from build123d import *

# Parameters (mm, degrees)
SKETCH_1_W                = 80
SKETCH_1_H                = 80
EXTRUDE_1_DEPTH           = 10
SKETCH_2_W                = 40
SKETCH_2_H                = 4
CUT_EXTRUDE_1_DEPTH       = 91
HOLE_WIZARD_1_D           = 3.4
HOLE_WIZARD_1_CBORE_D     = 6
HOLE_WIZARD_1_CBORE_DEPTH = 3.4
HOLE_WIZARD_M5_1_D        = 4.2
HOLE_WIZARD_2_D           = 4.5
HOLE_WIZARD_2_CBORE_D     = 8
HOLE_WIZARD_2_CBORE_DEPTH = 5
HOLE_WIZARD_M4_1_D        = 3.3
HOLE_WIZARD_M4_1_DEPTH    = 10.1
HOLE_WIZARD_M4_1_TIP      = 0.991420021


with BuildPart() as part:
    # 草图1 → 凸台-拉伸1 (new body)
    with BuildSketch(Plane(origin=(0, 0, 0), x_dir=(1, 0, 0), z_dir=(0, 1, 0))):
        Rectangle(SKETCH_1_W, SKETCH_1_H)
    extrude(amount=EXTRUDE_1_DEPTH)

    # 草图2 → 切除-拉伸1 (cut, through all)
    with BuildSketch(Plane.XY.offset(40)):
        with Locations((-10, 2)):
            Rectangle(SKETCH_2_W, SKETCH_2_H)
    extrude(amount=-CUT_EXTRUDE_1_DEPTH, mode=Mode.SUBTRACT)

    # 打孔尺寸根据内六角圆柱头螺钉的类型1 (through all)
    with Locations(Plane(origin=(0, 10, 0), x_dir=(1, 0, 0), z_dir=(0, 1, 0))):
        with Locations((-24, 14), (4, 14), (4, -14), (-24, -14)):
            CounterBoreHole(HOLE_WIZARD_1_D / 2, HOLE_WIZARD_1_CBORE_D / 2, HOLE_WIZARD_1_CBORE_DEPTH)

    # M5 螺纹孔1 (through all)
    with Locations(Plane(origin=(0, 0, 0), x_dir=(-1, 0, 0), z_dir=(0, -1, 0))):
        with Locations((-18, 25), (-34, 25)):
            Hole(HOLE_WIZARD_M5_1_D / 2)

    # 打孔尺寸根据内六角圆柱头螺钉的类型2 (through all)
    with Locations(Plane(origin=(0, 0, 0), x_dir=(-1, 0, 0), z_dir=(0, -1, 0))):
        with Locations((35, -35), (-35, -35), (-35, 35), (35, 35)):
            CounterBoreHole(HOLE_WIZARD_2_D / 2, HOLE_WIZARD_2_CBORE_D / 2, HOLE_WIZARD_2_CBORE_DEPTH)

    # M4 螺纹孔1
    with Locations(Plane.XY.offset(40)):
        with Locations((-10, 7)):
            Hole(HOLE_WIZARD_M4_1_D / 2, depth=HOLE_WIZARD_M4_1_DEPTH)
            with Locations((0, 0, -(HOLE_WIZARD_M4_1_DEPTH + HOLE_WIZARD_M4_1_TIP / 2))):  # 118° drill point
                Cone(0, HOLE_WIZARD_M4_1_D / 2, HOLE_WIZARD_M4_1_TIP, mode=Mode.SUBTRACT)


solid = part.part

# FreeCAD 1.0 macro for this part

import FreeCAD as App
import Part
import Sketcher
from FreeCAD import Vector
Q = App.Units.Quantity

doc = App.newDocument("Part")
body = doc.addObject("PartDesign::Body", "Body")

# Sketch on XZ plane
sketch1 = doc.addObject("Sketcher::SketchObject", "Sketch")
body.addObject(sketch1)
sketch1.AttachmentSupport = (doc.XZ_Plane, [""])
sketch1.MapMode = "FlatFace"
sketch1.addGeometry([
    Part.LineSegment(Vector(-40, -40, 0), Vector(-40, 40, 0)),
    Part.LineSegment(Vector(-40, 40, 0), Vector(40, 40, 0)),
    Part.LineSegment(Vector(40, 40, 0), Vector(40, -40, 0)),
    Part.LineSegment(Vector(40, -40, 0), Vector(-40, -40, 0)),
], False)
sketch1.addConstraint([
    Sketcher.Constraint("Coincident", 0, 2, 1, 1),
    Sketcher.Constraint("Coincident", 1, 2, 2, 1),
    Sketcher.Constraint("Coincident", 2, 2, 3, 1),
    Sketcher.Constraint("Coincident", 3, 2, 0, 1),
    Sketcher.Constraint("Vertical", 0),
    Sketcher.Constraint("Horizontal", 1),
    Sketcher.Constraint("Vertical", 2),
    Sketcher.Constraint("Horizontal", 3),
    Sketcher.Constraint("Symmetric", 0, 2, 2, 2, -1, 1),
    Sketcher.Constraint("Equal", 3, 0),
    Sketcher.Constraint("DistanceX", 1, 1, 1, 2, Q("80 mm")),
])
pad1 = doc.addObject("PartDesign::Pad", "Pad")
body.addObject(pad1)
pad1.Profile = sketch1
pad1.Length = 10
pad1.Reversed = True

# Sketch on XY plane
sketch2 = doc.addObject("Sketcher::SketchObject", "Sketch001")
body.addObject(sketch2)
sketch2.AttachmentSupport = (doc.XY_Plane, [""])
sketch2.MapMode = "FlatFace"
sketch2.AttachmentOffset = App.Placement(Vector(0, 0, 40), App.Rotation())
sketch2.addGeometry([
    Part.LineSegment(Vector(-30, 4, 0), Vector(-30, 0, 0)),
    Part.LineSegment(Vector(-30, 0, 0), Vector(10, 0, 0)),
    Part.LineSegment(Vector(10, 0, 0), Vector(10, 4, 0)),
    Part.LineSegment(Vector(10, 4, 0), Vector(-30, 4, 0)),
], False)
sketch2.addConstraint([
    Sketcher.Constraint("Coincident", 0, 2, 1, 1),
    Sketcher.Constraint("Coincident", 1, 2, 2, 1),
    Sketcher.Constraint("Coincident", 2, 2, 3, 1),
    Sketcher.Constraint("Coincident", 3, 2, 0, 1),
    Sketcher.Constraint("Vertical", 0),
    Sketcher.Constraint("Horizontal", 1),
    Sketcher.Constraint("Vertical", 2),
    Sketcher.Constraint("Horizontal", 3),
    Sketcher.Constraint("PointOnObject", 0, 2, -1),
    Sketcher.Constraint("DistanceX", 1, 1, 1, 2, Q("40 mm")),
    Sketcher.Constraint("DistanceY", 0, 2, 0, 1, Q("4 mm")),
    Sketcher.Constraint("DistanceX", 0, 2, -1, 1, Q("30 mm")),
])
pocket1 = doc.addObject("PartDesign::Pocket", "Pocket")
body.addObject(pocket1)
pocket1.Profile = sketch2
pocket1.Type = "ThroughAll"

# Sketch on XZ plane
sketch3 = doc.addObject("Sketcher::SketchObject", "Sketch002")
body.addObject(sketch3)
sketch3.AttachmentSupport = (doc.XZ_Plane, [""])
sketch3.MapMode = "FlatFace"
sketch3.AttachmentOffset = App.Placement(Vector(0, 0, -10), App.Rotation())
sketch3.addGeometry([
    Part.Circle(Vector(-24, -14, 0), Vector(0, 0, 1), 1.7),
    Part.Circle(Vector(4, -14, 0), Vector(0, 0, 1), 1.7),
    Part.Circle(Vector(4, 14, 0), Vector(0, 0, 1), 1.7),
    Part.Circle(Vector(-24, 14, 0), Vector(0, 0, 1), 1.7),
], False)
sketch3.addConstraint([
    Sketcher.Constraint("Equal", 0, 1),
    Sketcher.Constraint("Equal", 1, 2),
    Sketcher.Constraint("Equal", 2, 3),
    Sketcher.Constraint("Symmetric", 1, 3, 2, 3, -1),
    Sketcher.Constraint("Symmetric", 0, 3, 3, 3, -1),
    Sketcher.Constraint("Horizontal", 0, 3, 1, 3),
    Sketcher.Constraint("Diameter", 0, Q("3.4 mm")),
    Sketcher.Constraint("DistanceX", 0, 3, -1, 1, Q("24 mm")),
    Sketcher.Constraint("DistanceY", 0, 3, -1, 1, Q("14 mm")),
    Sketcher.Constraint("DistanceX", -1, 1, 1, 3, Q("4 mm")),
])
doc.recompute()
hole = doc.addObject("PartDesign::Hole", "Hole")
body.addObject(hole)
hole.Profile = sketch3
hole.ThreadType = "None"
hole.Diameter = 3.4
hole.DepthType = "ThroughAll"
hole.HoleCutType = "Counterbore"
hole.HoleCutDiameter = 6
hole.HoleCutDepth = 3.4
hole.Reversed = True

# Sketch on XZ plane
sketch4 = doc.addObject("Sketcher::SketchObject", "Sketch003")
body.addObject(sketch4)
sketch4.AttachmentSupport = (doc.XZ_Plane, [""])
sketch4.MapMode = "FlatFace"
sketch4.addGeometry([
    Part.Circle(Vector(18, -25, 0), Vector(0, 0, 1), 2.1),
    Part.Circle(Vector(34, -25, 0), Vector(0, 0, 1), 2.1),
], False)
sketch4.addConstraint([
    Sketcher.Constraint("Equal", 0, 1),
    Sketcher.Constraint("Horizontal", 0, 3, 1, 3),
    Sketcher.Constraint("Diameter", 0, Q("4.2 mm")),
    Sketcher.Constraint("DistanceX", -1, 1, 0, 3, Q("18 mm")),
    Sketcher.Constraint("DistanceY", 0, 3, -1, 1, Q("25 mm")),
    Sketcher.Constraint("DistanceX", -1, 1, 1, 3, Q("34 mm")),
])
doc.recompute()
hole2 = doc.addObject("PartDesign::Hole", "Hole001")
body.addObject(hole2)
hole2.Profile = sketch4
hole2.ThreadType = "None"
hole2.Diameter = 4.2
hole2.DepthType = "ThroughAll"

# Sketch on XZ plane
sketch5 = doc.addObject("Sketcher::SketchObject", "Sketch004")
body.addObject(sketch5)
sketch5.AttachmentSupport = (doc.XZ_Plane, [""])
sketch5.MapMode = "FlatFace"
sketch5.addGeometry([
    Part.Circle(Vector(-35, 35, 0), Vector(0, 0, 1), 2.2),
    Part.Circle(Vector(35, 35, 0), Vector(0, 0, 1), 2.2),
    Part.Circle(Vector(35, -35, 0), Vector(0, 0, 1), 2.2),
    Part.Circle(Vector(-35, -35, 0), Vector(0, 0, 1), 2.2),
], False)
sketch5.addConstraint([
    Sketcher.Constraint("Equal", 0, 1),
    Sketcher.Constraint("Equal", 1, 2),
    Sketcher.Constraint("Equal", 2, 3),
    Sketcher.Constraint("Symmetric", 0, 3, 2, 3, -1, 1),
    Sketcher.Constraint("Symmetric", 1, 3, 3, 3, -1, 1),
    Sketcher.Constraint("Symmetric", 0, 3, 1, 3, -2),
    Sketcher.Constraint("Diameter", 0, Q("4.5 mm")),
    Sketcher.Constraint("DistanceX", 0, 3, -1, 1, Q("35 mm")),
    Sketcher.Constraint("DistanceY", -1, 1, 0, 3, Q("35 mm")),
])
doc.recompute()
hole3 = doc.addObject("PartDesign::Hole", "Hole002")
body.addObject(hole3)
hole3.Profile = sketch5
hole3.ThreadType = "None"
hole3.Diameter = 4.5
hole3.DepthType = "ThroughAll"
hole3.HoleCutType = "Counterbore"
hole3.HoleCutDiameter = 8
hole3.HoleCutDepth = 5

# Sketch on XY plane
sketch6 = doc.addObject("Sketcher::SketchObject", "Sketch005")
body.addObject(sketch6)
sketch6.AttachmentSupport = (doc.XY_Plane, [""])
sketch6.MapMode = "FlatFace"
sketch6.AttachmentOffset = App.Placement(Vector(0, 0, 40), App.Rotation())
sketch6.addGeometry(Part.Circle(Vector(-10, 7, 0), Vector(0, 0, 1), 1.6), False)
sketch6.addConstraint([
    Sketcher.Constraint("Diameter", 0, Q("3.3 mm")),
    Sketcher.Constraint("DistanceX", 0, 3, -1, 1, Q("10 mm")),
    Sketcher.Constraint("DistanceY", -1, 1, 0, 3, Q("7 mm")),
])
doc.recompute()
hole4 = doc.addObject("PartDesign::Hole", "Hole003")
body.addObject(hole4)
hole4.Profile = sketch6
hole4.ThreadType = "None"
hole4.Diameter = 3.3
hole4.DepthType = "Dimension"
hole4.Depth = 10.1
hole4.DrillPoint = "Angled"
hole4.DrillPointAngle = 118

doc.recompute()
